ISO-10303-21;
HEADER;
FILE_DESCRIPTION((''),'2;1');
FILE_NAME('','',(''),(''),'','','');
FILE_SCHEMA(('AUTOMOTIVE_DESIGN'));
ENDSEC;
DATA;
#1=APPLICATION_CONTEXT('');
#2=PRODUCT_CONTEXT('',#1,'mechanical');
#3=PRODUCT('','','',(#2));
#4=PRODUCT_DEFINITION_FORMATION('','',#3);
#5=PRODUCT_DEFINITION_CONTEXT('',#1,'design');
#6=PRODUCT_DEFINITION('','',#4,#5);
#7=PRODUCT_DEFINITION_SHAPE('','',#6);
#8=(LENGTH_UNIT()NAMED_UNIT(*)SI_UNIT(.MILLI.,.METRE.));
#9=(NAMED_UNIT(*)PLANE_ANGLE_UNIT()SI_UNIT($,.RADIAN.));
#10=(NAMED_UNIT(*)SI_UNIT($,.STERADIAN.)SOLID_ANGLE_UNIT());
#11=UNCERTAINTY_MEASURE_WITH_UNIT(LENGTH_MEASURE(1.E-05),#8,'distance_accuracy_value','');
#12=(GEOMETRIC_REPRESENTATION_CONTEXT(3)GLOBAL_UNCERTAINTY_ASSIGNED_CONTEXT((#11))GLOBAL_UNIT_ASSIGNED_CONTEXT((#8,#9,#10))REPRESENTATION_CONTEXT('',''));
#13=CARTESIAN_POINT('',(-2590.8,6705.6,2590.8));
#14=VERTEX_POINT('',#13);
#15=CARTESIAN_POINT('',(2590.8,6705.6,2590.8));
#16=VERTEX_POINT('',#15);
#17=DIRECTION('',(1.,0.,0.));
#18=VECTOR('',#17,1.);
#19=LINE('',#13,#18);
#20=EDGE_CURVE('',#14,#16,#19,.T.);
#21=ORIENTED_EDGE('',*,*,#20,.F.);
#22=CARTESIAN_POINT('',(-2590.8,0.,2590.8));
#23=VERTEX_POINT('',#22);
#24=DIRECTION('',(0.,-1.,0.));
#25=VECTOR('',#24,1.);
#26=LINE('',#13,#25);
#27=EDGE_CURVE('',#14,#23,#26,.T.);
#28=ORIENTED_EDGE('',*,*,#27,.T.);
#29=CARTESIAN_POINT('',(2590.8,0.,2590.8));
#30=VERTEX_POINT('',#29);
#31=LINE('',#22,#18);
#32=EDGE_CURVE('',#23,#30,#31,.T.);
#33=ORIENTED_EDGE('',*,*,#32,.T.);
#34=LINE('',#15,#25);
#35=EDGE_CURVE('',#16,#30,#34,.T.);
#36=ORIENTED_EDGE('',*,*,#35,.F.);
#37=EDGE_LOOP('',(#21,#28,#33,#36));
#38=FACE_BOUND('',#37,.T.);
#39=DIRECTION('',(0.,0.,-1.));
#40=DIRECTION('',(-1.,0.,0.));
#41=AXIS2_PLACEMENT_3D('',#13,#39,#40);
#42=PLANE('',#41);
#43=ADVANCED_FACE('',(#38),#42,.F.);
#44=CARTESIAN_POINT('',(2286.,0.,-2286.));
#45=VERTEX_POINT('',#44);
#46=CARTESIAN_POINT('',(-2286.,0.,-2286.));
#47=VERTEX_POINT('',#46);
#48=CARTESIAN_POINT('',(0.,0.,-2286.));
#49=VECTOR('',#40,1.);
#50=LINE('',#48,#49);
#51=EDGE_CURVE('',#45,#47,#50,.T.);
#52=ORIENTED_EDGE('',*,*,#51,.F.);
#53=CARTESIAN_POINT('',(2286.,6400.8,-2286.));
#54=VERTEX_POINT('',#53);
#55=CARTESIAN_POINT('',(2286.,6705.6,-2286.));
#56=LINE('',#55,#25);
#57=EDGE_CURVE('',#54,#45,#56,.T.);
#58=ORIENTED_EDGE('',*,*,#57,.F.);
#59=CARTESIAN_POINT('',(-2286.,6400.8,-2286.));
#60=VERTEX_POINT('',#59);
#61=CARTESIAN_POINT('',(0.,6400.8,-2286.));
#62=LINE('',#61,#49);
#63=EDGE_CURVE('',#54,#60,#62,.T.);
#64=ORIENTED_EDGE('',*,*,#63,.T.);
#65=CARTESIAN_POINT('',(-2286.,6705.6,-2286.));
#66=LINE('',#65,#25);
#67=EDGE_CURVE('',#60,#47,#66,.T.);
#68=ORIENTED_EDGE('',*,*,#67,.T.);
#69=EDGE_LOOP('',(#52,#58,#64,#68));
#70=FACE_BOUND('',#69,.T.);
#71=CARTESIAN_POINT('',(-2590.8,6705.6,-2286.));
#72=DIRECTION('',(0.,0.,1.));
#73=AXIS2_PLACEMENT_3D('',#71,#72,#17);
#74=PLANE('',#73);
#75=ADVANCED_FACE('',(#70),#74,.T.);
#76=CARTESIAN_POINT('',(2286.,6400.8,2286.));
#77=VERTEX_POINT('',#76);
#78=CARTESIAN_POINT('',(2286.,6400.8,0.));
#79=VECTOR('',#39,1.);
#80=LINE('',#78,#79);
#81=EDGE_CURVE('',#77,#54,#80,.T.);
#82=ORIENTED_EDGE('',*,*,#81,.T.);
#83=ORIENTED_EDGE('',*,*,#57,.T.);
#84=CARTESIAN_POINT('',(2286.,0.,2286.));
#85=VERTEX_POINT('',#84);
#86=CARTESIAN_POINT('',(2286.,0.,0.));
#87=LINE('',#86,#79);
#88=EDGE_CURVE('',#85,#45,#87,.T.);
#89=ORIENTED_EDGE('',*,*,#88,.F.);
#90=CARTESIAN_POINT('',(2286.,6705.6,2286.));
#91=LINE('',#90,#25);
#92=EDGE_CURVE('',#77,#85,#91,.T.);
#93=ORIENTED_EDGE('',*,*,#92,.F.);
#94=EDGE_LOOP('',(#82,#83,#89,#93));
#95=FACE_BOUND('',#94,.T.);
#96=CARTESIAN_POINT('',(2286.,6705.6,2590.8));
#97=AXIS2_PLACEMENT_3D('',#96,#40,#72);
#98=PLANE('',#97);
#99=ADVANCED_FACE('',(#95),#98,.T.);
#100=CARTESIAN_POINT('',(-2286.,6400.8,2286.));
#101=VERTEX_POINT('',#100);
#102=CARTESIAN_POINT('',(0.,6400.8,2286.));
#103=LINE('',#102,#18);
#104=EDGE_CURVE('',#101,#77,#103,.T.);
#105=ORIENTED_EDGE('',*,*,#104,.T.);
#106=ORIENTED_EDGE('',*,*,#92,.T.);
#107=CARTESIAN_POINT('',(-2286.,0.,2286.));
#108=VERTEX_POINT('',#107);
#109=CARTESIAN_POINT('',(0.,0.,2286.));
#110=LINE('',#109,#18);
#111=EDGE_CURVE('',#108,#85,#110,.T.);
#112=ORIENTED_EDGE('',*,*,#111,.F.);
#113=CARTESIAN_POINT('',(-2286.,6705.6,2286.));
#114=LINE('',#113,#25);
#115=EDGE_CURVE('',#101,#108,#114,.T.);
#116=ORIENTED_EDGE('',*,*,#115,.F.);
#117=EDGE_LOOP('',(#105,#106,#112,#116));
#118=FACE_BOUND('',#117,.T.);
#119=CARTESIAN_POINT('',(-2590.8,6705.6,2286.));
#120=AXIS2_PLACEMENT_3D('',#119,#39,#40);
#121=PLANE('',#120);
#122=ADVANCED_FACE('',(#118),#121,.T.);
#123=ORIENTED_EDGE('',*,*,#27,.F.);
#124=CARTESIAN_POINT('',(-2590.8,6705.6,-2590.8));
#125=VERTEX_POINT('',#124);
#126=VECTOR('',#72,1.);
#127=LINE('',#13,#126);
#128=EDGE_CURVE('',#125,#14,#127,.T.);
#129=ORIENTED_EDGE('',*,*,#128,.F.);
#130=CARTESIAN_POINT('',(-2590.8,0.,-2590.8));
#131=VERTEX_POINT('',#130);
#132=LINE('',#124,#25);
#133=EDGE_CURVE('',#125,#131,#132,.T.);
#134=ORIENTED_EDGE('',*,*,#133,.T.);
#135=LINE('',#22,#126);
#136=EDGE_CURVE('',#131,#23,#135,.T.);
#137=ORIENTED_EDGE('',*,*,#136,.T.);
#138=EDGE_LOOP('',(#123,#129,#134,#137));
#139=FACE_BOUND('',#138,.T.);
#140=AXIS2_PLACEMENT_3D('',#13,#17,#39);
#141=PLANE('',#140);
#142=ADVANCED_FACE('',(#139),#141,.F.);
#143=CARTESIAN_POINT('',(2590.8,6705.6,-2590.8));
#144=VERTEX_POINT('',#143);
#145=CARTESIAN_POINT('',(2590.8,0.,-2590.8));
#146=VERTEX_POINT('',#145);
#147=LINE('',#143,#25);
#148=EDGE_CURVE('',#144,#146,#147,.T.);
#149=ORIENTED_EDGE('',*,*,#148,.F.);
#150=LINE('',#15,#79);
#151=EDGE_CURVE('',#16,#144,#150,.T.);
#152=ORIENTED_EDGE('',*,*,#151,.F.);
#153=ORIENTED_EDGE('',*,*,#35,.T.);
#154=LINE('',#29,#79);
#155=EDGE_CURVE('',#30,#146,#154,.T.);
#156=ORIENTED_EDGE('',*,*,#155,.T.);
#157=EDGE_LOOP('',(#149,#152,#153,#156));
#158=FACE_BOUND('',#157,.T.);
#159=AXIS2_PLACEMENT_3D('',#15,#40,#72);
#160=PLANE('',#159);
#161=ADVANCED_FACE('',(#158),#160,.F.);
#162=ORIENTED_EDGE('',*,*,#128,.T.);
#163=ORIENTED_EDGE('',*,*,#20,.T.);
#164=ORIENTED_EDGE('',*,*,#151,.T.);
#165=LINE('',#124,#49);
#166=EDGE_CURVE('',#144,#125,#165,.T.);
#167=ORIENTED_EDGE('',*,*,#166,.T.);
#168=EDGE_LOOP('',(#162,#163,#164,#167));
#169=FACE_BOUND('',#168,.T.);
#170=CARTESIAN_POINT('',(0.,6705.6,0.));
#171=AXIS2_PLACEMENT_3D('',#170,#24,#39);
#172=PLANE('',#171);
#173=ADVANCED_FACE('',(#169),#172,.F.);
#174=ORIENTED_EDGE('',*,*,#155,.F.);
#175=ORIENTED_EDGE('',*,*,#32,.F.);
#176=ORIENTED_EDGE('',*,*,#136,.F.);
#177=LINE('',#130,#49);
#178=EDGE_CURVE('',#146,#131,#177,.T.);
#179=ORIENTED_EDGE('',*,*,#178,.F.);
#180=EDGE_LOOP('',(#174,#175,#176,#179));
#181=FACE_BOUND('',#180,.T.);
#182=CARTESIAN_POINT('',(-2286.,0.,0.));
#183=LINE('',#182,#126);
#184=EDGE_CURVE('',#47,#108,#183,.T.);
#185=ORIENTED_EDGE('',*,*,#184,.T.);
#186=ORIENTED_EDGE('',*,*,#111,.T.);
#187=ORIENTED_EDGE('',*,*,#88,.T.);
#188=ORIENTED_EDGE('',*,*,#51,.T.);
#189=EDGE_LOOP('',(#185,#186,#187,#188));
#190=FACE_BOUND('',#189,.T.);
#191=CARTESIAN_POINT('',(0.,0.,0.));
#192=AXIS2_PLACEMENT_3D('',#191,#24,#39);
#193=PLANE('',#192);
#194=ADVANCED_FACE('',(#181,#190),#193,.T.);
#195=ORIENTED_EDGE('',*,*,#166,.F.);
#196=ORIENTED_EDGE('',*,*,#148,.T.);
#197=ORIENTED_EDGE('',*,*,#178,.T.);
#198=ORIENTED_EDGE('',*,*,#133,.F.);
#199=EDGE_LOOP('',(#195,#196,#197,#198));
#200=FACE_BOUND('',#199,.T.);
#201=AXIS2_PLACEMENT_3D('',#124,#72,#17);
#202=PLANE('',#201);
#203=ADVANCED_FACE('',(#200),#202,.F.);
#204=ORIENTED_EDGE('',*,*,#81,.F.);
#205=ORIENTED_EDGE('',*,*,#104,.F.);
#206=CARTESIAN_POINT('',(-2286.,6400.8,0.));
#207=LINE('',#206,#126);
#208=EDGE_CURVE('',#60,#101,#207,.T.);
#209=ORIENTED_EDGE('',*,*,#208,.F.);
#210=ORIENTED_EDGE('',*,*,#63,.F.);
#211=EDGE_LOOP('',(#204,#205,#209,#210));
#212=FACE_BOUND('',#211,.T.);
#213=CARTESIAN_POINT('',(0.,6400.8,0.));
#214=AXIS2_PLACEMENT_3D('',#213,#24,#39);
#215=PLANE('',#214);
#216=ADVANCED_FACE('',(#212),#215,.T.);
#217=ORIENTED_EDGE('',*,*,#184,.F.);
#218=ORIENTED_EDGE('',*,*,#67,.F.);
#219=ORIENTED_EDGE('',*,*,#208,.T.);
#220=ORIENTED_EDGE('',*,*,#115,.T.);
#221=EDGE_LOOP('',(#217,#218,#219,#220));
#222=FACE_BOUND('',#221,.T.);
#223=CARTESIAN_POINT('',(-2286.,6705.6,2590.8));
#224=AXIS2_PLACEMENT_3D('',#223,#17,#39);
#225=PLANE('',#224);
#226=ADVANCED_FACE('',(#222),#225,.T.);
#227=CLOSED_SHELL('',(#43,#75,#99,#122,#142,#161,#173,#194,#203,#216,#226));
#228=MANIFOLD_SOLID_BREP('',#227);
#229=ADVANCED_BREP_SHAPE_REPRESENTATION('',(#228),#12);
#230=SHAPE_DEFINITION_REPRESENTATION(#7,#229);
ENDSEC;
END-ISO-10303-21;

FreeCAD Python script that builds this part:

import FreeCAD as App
import Part
import Sketcher
from FreeCAD import Vector
Q = App.Units.Quantity


def faces_at(feature, points):
    """Names of the faces that lie closest to the given points."""
    faces = feature.Shape.Faces
    near = lambda p: min(range(len(faces)), key=lambda i: faces[i].distToShape(Part.Vertex(*p))[0])
    return sorted({f"Face{near(p) + 1}" for p in points})

doc = App.newDocument("Part")
body = doc.addObject("PartDesign::Body", "Body")

# Sketch on XZ plane
sketch1 = body.newObject("Sketcher::SketchObject", "Sketch")
sketch1.AttachmentSupport = (doc.getObject("XZ_Plane"), [""])
sketch1.MapMode = "FlatFace"
sketch1.addGeometry(Part.LineSegment(Vector(-2591, -2591, 0), Vector(-2591, 2591, 0)), False)
sketch1.addGeometry(Part.LineSegment(Vector(-2591, 2591, 0), Vector(2591, 2591, 0)), False)
sketch1.addGeometry(Part.LineSegment(Vector(2591, 2591, 0), Vector(2591, -2591, 0)), False)
sketch1.addGeometry(Part.LineSegment(Vector(2591, -2591, 0), Vector(-2591, -2591, 0)), False)
sketch1.addConstraint(Sketcher.Constraint("Coincident", 0, 2, 1, 1))
sketch1.addConstraint(Sketcher.Constraint("Coincident", 1, 2, 2, 1))
sketch1.addConstraint(Sketcher.Constraint("Coincident", 2, 2, 3, 1))
sketch1.addConstraint(Sketcher.Constraint("Coincident", 3, 2, 0, 1))
sketch1.addConstraint(Sketcher.Constraint("Vertical", 0))
sketch1.addConstraint(Sketcher.Constraint("Horizontal", 1))
sketch1.addConstraint(Sketcher.Constraint("Vertical", 2))
sketch1.addConstraint(Sketcher.Constraint("Horizontal", 3))
sketch1.addConstraint(Sketcher.Constraint("Symmetric", 0, 2, 2, 2, -1, 1))
sketch1.addConstraint(Sketcher.Constraint("Equal", 3, 0))
sketch1.addConstraint(Sketcher.Constraint("DistanceX", 1, 1, 1, 2, Q("204 in")))
pad1 = body.newObject("PartDesign::Pad", "Pad")
pad1.Profile = sketch1
pad1.Length = Q("264 in")
pad1.Reversed = True
doc.recompute()

thickness = body.newObject("PartDesign::Thickness", "Thickness")
thickness.Base = (pad1, faces_at(pad1, [(0, 0, 0)]))
thickness.Value = Q("12 in")
thickness.Reversed = True
thickness.Join = "Intersection"

doc.recompute()
